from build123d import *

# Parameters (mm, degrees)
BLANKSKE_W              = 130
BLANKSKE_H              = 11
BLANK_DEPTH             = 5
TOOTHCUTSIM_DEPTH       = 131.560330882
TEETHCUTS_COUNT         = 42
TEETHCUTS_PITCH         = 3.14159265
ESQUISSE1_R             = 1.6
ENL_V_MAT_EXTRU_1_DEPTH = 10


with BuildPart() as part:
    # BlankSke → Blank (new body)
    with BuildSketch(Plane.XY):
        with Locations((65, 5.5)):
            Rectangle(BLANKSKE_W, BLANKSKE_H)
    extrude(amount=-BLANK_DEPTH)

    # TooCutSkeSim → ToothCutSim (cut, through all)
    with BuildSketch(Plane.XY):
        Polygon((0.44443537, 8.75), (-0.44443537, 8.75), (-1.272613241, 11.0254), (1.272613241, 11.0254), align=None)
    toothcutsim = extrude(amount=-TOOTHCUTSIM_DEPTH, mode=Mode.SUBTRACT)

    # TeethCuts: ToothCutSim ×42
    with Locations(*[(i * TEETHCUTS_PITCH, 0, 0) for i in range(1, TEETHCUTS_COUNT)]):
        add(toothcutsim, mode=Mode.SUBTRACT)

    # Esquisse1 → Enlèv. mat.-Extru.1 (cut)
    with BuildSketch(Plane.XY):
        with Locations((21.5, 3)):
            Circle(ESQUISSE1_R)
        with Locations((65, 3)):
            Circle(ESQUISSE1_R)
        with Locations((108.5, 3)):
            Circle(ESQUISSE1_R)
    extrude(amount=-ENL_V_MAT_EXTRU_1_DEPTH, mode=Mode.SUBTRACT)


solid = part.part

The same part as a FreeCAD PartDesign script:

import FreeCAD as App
import Part
import Sketcher
Q = App.Units.Quantity


def add_polygon(sketch, points):
    """Adds a closed chain of lines whose ends are joined by coincident constraints."""
    first, n = sketch.GeometryCount, len(points)
    for a, b in zip(points, points[1:] + points[:1]):
        sketch.addGeometry(Part.LineSegment(App.Vector(*a, 0), App.Vector(*b, 0)), False)
    for i in range(n):
        sketch.addConstraint(Sketcher.Constraint("Coincident", first + i, 2, first + (i + 1) % n, 1))

doc = App.newDocument("Part")
body = doc.addObject("PartDesign::Body", "Body")

sketch1 = doc.addObject("Sketcher::SketchObject", "Sketch")
body.addObject(sketch1)
sketch1.AttachmentSupport = (doc.XY_Plane, [""])
sketch1.MapMode = "FlatFace"
add_polygon(sketch1, [(0, 11), (0, 0), (130, 0), (130, 11)])
sketch1.addConstraint(Sketcher.Constraint("Vertical", 0))
sketch1.addConstraint(Sketcher.Constraint("Horizontal", 1))
sketch1.addConstraint(Sketcher.Constraint("Vertical", 2))
sketch1.addConstraint(Sketcher.Constraint("Horizontal", 3))
sketch1.addConstraint(Sketcher.Constraint("Coincident", 0, 2, -1, 1))
sketch1.addConstraint(Sketcher.Constraint("DistanceX", 1, 1, 1, 2, 130.0))
sketch1.addConstraint(Sketcher.Constraint("DistanceY", 0, 2, 0, 1, 11.0))
pad1 = doc.addObject("PartDesign::Pad", "Pad")
body.addObject(pad1)
pad1.Profile = sketch1
pad1.Length = 5
pad1.Reversed = True

sketch2 = doc.addObject("Sketcher::SketchObject", "Sketch001")
body.addObject(sketch2)
sketch2.AttachmentSupport = (doc.XY_Plane, [""])
sketch2.MapMode = "FlatFace"
add_polygon(sketch2, [(-0.4, 8.8), (0.4, 8.8), (1.3, 11), (-1.3, 11)])
sketch2.addConstraint(Sketcher.Constraint("Horizontal", 0))
sketch2.addConstraint(Sketcher.Constraint("Horizontal", 2))
sketch2.addConstraint(Sketcher.Constraint("Equal", 1, 3))
sketch2.addConstraint(Sketcher.Constraint("Angle", 1, Q("70 deg")))
sketch2.addConstraint(Sketcher.Constraint("DistanceY", -1, 1, 0, 2, 8.75))
sketch2.addConstraint(Sketcher.Constraint("DistanceX", 0, 1, 0, 2, 0.888871))
sketch2.addConstraint(Sketcher.Constraint("DistanceY", -1, 1, 1, 2, 11.0254))
sketch2.addConstraint(Sketcher.Constraint("DistanceX", -1, 1, 0, 2, 0.444435))
pocket1 = doc.addObject("PartDesign::Pocket", "Pocket")
body.addObject(pocket1)
pocket1.Profile = sketch2
pocket1.Type = "ThroughAll"
doc.recompute()

linearpattern = doc.addObject("PartDesign::LinearPattern", "LinearPattern")
body.addObject(linearpattern)
linearpattern.Originals = [pocket1]
linearpattern.Direction = (doc.X_Axis, [""])
linearpattern.Mode = "offset"
linearpattern.Offset = 3.141593
linearpattern.Occurrences = 42
body.Tip = linearpattern

sketch3 = doc.addObject("Sketcher::SketchObject", "Sketch002")
body.addObject(sketch3)
sketch3.AttachmentSupport = (doc.XY_Plane, [""])
sketch3.MapMode = "FlatFace"
sketch3.addGeometry(Part.Circle(App.Vector(21.5, 3, 0), App.Vector(0, 0, 1), 1.6), False)
sketch3.addGeometry(Part.Circle(App.Vector(65, 3, 0), App.Vector(0, 0, 1), 1.6), False)
sketch3.addGeometry(Part.Circle(App.Vector(108.5, 3, 0), App.Vector(0, 0, 1), 1.6), False)
sketch3.addConstraint(Sketcher.Constraint("Equal", 0, 1))
sketch3.addConstraint(Sketcher.Constraint("Equal", 1, 2))
sketch3.addConstraint(Sketcher.Constraint("Horizontal", 0, 3, 1, 3))
sketch3.addConstraint(Sketcher.Constraint("Horizontal", 1, 3, 2, 3))
sketch3.addConstraint(Sketcher.Constraint("Diameter", 0, 3.2))
sketch3.addConstraint(Sketcher.Constraint("DistanceY", -1, 1, 0, 3, 3.0))
sketch3.addConstraint(Sketcher.Constraint("DistanceX", -1, 1, 1, 3, 65.0))
sketch3.addConstraint(Sketcher.Constraint("DistanceX", 0, 3, 2, 3, 87.0))
sketch3.addConstraint(Sketcher.Constraint("DistanceX", -1, 1, 0, 3, 21.5))
pocket2 = doc.addObject("PartDesign::Pocket", "Pocket001")
body.addObject(pocket2)
pocket2.Profile = sketch3
pocket2.Length = 10

doc.recompute()
